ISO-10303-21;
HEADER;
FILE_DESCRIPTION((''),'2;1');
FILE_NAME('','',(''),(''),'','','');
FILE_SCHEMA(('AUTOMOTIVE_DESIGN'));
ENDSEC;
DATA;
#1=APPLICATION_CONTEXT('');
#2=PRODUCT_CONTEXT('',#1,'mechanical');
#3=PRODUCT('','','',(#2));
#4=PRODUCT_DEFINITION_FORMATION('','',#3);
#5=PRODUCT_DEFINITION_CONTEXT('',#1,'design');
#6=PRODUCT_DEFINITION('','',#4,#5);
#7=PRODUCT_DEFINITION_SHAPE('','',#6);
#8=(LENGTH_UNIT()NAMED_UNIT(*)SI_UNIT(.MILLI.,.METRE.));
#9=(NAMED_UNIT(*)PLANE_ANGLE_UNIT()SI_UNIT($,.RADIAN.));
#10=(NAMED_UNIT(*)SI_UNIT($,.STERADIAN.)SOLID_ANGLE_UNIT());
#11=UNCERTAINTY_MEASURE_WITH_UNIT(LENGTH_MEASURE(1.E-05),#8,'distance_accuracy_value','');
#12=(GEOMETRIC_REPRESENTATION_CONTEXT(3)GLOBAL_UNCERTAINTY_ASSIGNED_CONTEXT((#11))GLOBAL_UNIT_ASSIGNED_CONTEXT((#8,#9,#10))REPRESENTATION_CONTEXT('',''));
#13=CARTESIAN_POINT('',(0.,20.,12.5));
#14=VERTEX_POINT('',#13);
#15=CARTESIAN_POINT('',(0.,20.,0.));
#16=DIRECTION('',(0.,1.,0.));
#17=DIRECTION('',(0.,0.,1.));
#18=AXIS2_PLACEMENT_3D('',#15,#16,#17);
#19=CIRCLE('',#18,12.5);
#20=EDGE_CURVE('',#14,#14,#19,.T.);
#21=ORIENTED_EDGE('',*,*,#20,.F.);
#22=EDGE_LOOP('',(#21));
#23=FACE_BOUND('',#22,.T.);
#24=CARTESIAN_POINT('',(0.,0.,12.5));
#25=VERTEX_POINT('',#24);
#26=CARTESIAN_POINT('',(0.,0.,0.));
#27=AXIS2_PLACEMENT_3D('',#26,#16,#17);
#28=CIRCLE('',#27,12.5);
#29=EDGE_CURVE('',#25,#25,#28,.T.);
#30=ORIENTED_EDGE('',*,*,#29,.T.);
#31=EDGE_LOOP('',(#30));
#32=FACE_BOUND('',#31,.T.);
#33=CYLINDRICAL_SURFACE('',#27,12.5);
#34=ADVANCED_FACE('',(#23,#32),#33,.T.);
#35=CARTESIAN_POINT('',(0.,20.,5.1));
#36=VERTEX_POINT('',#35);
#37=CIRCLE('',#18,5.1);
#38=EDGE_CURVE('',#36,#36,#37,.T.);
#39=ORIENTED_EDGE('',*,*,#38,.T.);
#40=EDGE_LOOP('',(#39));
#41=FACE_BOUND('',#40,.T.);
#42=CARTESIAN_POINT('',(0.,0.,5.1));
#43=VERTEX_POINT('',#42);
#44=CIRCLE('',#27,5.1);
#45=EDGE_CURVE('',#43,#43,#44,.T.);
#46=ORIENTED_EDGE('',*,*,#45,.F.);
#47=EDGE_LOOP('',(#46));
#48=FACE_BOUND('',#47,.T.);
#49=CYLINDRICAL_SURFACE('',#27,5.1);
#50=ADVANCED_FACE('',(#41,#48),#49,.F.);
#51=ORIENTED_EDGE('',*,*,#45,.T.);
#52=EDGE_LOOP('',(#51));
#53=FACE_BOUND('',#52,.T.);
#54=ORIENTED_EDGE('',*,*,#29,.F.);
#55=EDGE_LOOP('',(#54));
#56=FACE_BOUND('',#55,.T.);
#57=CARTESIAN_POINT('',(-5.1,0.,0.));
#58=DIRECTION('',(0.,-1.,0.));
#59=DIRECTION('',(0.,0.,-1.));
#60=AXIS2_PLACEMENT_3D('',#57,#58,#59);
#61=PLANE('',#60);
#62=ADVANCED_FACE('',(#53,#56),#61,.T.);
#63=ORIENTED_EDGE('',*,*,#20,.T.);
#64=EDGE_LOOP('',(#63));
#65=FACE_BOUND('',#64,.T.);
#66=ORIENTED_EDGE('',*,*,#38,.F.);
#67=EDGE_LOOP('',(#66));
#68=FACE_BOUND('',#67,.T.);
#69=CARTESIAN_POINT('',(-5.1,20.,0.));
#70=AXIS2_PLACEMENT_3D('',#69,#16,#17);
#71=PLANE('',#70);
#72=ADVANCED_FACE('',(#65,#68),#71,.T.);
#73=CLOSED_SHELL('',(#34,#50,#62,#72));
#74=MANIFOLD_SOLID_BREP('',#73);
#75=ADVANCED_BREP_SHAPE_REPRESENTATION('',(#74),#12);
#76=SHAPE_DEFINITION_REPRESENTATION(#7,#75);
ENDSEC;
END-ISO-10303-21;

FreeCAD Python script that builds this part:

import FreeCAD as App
import Part
import Sketcher


def add_polygon(sketch, points):
    """Adds a closed chain of lines whose ends are joined by coincident constraints."""
    first, n = sketch.GeometryCount, len(points)
    for a, b in zip(points, points[1:] + points[:1]):
        sketch.addGeometry(Part.LineSegment(App.Vector(*a, 0), App.Vector(*b, 0)), False)
    for i in range(n):
        sketch.addConstraint(Sketcher.Constraint("Coincident", first + i, 2, first + (i + 1) % n, 1))

doc = App.newDocument("Part")
params = doc.addObject("Spreadsheet::Sheet", "Params")
for row, (alias, value) in enumerate([
    ("sketch1_height", "20 mm"),
    ("sketch1_width", "7.4 mm"),
    ("revolution_angle", "360 deg"),
], start=1):
    params.set(f"A{row}", alias)
    params.set(f"B{row}", "=" + value)
    params.setAlias(f"B{row}", alias)

body = doc.addObject("PartDesign::Body", "Body")

sketch1 = body.newObject("Sketcher::SketchObject", "Sketch")
sketch1.AttachmentSupport = (doc.getObject("XY_Plane"), [""])
sketch1.MapMode = "FlatFace"
add_polygon(sketch1, [(-12.5, 20), (-12.5, 0), (-5.1, 0), (-5.1, 20)])
sketch1.addConstraint([
    Sketcher.Constraint("Vertical", 0),
    Sketcher.Constraint("Horizontal", 1),
    Sketcher.Constraint("Vertical", 2),
    Sketcher.Constraint("Horizontal", 3),
    Sketcher.Constraint("PointOnObject", 0, 2, -1),
    Sketcher.Constraint("DistanceY", 0, 2, 0, 1, 20.0),
    Sketcher.Constraint("DistanceX", 1, 1, 1, 2, 7.4),
    Sketcher.Constraint("DistanceX", 0, 2, -1, 1, 12.5),
])
sketch1.setExpression("Constraints[9]", "Params.sketch1_height")
sketch1.setExpression("Constraints[10]", "Params.sketch1_width")
revolution = body.newObject("PartDesign::Revolution", "Revolution")
revolution.Profile = sketch1
revolution.ReferenceAxis = (sketch1, ["V_Axis"])
revolution.setExpression("Angle", "Params.revolution_angle")

doc.recompute()
